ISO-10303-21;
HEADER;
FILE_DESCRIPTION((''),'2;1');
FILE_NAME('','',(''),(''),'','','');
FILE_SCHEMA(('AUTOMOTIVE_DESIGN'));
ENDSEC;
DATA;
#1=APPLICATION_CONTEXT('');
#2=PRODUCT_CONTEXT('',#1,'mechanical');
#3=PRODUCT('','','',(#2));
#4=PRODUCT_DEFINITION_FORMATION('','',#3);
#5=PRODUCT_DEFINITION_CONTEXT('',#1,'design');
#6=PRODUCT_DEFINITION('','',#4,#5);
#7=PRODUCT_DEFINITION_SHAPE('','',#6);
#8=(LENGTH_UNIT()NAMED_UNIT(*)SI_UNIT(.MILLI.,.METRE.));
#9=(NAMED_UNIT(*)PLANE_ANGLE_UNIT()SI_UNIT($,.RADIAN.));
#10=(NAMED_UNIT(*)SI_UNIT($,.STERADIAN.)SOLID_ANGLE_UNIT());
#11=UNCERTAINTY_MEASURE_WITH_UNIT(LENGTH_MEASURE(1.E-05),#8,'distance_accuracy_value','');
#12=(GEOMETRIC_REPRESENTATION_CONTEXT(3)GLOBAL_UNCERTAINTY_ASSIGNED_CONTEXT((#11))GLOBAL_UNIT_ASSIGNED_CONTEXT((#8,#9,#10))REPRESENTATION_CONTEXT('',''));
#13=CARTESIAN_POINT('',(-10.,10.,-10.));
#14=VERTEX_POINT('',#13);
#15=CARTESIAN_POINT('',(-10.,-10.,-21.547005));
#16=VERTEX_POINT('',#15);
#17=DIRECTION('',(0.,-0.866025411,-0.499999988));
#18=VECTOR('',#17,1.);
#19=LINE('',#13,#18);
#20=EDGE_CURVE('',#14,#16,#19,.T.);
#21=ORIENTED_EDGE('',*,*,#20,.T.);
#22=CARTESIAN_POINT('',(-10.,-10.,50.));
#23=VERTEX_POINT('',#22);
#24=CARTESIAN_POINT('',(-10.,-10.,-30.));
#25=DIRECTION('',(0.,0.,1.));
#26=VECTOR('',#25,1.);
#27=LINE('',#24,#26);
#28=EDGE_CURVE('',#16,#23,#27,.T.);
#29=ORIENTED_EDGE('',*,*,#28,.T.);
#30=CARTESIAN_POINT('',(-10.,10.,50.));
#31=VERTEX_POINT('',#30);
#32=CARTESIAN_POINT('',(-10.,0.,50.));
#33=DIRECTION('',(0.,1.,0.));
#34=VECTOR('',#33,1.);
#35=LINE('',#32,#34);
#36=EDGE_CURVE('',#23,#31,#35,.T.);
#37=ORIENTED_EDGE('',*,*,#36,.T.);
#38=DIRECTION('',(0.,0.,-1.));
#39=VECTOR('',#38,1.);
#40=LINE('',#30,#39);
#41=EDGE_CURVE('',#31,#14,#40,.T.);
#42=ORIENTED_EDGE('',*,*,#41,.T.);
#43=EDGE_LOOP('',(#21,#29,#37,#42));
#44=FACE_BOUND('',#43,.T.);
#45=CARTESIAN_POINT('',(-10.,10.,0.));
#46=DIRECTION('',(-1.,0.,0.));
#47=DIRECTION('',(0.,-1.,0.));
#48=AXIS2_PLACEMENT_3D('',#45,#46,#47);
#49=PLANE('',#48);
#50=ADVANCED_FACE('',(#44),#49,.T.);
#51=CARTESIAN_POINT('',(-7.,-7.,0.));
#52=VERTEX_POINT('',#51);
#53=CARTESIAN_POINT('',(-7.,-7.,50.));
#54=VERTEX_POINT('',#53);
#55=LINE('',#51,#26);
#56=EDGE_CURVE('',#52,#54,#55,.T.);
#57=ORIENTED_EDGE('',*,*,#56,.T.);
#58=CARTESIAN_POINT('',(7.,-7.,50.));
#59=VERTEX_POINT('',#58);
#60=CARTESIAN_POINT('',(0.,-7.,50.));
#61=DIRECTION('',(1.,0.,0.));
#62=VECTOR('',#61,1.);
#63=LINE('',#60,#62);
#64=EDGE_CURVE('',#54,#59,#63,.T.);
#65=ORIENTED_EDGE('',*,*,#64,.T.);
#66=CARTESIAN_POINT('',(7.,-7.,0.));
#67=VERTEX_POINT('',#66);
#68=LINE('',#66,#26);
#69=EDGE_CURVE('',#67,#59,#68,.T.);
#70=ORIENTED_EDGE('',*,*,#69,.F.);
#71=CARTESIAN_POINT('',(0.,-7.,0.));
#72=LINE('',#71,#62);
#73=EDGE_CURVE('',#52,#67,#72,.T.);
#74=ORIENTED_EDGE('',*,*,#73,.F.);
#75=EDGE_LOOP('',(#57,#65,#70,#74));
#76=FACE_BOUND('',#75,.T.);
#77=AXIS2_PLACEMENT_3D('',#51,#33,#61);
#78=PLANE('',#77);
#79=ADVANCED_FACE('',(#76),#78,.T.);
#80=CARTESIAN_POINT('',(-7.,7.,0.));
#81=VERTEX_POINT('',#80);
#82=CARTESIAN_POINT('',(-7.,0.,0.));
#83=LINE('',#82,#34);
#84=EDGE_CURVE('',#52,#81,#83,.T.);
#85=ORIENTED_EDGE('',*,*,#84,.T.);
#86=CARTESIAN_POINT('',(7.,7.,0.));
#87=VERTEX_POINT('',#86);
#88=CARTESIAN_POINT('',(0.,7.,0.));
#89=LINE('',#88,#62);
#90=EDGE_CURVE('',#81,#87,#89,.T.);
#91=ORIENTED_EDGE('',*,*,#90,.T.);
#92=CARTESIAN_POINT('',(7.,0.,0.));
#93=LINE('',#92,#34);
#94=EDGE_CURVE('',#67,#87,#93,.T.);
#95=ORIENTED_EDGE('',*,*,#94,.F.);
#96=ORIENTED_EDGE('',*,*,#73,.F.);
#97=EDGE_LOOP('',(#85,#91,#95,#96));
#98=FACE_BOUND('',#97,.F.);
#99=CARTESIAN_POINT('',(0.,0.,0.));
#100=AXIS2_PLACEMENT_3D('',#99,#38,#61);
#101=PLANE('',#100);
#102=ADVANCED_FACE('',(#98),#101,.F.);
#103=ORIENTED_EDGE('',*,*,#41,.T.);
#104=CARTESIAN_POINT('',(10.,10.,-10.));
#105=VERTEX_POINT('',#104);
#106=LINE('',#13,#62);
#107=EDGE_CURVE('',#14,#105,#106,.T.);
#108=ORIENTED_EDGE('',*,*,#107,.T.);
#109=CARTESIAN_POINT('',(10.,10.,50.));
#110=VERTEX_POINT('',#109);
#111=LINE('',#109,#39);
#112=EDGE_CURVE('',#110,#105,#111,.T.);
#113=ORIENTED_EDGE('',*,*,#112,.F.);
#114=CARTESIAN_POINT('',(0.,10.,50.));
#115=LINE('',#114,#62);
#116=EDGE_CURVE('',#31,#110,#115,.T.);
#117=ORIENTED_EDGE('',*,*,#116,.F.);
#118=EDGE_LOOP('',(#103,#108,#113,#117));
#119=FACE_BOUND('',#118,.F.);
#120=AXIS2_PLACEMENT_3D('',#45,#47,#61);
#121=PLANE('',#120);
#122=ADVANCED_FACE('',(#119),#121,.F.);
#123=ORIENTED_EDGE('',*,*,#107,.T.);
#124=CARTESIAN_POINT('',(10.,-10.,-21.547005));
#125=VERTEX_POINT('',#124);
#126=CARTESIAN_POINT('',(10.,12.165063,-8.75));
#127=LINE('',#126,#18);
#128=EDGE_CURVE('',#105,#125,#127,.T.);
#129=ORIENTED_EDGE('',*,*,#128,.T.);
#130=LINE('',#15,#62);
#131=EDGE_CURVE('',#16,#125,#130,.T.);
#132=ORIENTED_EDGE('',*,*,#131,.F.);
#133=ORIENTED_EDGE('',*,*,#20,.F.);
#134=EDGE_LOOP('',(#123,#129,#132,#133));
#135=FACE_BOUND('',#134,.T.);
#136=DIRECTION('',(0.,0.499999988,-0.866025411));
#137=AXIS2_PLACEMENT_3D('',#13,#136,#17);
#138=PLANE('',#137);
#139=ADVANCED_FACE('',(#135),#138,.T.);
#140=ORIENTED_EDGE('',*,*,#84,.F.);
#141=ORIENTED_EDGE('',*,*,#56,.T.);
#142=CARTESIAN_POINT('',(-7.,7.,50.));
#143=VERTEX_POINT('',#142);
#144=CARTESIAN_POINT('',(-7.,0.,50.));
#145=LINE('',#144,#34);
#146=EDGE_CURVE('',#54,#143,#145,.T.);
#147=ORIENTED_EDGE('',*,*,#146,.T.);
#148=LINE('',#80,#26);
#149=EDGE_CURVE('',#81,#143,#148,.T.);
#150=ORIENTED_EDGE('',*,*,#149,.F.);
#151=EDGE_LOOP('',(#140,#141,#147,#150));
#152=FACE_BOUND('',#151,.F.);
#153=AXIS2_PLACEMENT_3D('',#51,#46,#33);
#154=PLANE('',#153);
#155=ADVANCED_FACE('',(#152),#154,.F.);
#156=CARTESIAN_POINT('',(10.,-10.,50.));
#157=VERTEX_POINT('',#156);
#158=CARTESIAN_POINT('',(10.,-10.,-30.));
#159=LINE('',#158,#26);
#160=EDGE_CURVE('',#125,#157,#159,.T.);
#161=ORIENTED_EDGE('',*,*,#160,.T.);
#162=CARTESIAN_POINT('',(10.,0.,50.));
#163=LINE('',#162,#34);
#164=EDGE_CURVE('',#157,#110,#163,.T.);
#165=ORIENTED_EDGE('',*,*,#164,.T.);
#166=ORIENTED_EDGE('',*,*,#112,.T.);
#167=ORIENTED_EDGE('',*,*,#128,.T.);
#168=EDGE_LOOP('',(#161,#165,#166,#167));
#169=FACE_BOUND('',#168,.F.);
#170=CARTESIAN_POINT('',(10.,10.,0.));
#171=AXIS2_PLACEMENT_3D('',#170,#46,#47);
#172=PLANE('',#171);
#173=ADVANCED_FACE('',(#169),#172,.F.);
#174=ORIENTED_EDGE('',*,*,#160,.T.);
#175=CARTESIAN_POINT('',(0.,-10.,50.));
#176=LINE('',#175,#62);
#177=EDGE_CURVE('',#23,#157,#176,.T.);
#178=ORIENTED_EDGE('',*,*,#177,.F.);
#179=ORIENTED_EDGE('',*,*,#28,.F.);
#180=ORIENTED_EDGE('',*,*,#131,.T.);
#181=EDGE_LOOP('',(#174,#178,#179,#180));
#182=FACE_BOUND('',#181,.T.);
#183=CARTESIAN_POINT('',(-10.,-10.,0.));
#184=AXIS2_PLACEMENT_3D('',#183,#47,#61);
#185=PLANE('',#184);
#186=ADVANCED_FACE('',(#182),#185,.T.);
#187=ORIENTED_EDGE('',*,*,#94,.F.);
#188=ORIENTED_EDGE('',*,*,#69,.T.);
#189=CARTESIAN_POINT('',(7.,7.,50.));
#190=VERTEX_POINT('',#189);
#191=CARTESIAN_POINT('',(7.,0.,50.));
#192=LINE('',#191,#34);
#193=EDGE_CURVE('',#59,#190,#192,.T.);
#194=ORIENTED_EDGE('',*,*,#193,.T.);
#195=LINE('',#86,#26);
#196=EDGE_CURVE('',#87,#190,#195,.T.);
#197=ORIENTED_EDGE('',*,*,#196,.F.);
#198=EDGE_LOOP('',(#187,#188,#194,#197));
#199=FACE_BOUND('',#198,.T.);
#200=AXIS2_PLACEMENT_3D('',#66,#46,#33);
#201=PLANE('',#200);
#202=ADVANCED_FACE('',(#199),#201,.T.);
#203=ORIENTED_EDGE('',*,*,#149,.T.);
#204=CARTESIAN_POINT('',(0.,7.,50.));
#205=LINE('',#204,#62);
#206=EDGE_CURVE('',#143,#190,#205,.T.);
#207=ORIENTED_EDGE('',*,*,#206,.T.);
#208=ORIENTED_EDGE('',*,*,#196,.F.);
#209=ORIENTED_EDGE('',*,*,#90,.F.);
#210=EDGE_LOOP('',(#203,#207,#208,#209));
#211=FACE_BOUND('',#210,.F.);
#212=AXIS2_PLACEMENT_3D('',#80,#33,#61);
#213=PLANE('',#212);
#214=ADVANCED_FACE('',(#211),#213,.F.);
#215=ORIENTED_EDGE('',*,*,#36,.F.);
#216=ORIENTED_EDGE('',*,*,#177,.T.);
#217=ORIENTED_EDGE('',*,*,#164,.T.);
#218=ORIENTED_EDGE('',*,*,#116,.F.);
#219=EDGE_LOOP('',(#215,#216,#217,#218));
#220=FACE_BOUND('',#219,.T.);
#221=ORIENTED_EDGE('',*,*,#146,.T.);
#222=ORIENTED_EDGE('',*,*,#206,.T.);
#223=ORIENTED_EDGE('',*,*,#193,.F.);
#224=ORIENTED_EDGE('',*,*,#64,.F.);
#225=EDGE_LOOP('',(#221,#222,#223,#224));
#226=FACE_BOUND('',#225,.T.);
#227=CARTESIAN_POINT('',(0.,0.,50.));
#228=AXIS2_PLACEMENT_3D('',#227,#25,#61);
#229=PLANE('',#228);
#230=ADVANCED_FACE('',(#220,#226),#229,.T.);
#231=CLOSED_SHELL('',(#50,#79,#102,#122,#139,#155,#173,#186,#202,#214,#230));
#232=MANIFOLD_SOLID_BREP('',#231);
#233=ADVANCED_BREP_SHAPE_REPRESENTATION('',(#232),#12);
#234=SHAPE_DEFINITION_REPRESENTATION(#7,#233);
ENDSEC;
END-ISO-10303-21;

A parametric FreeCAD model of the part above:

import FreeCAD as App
import Part
import Sketcher

V = App.Vector
Q = App.Units.Quantity

doc = App.newDocument("Part")
body = doc.addObject("PartDesign::Body", "Body")

# Sketch on XY plane
sketch1 = body.newObject("Sketcher::SketchObject", "Sketch")
sketch1.AttachmentSupport = (doc.getObject("XY_Plane"), [""])
sketch1.MapMode = "FlatFace"
sketch1.addGeometry([
    Part.LineSegment(V(-10, 10, 0), V(-10, -10, 0)),  # 0
    Part.LineSegment(V(-10, -10, 0), V(10, -10, 0)),  # 1
    Part.LineSegment(V(10, -10, 0), V(10, 10, 0)),  # 2
    Part.LineSegment(V(10, 10, 0), V(-10, 10, 0)),  # 3
    Part.LineSegment(V(7, -7, 0), V(-7, -7, 0)),  # 4
    Part.LineSegment(V(-7, -7, 0), V(-7, 7, 0)),  # 5
    Part.LineSegment(V(-7, 7, 0), V(7, 7, 0)),  # 6
    Part.LineSegment(V(7, 7, 0), V(7, -7, 0)),  # 7
], False)
sketch1.addConstraint([
    Sketcher.Constraint("Coincident", 0, 2, 1, 1),
    Sketcher.Constraint("Coincident", 1, 2, 2, 1),
    Sketcher.Constraint("Coincident", 2, 2, 3, 1),
    Sketcher.Constraint("Coincident", 3, 2, 0, 1),
    Sketcher.Constraint("Coincident", 4, 2, 5, 1),
    Sketcher.Constraint("Coincident", 5, 2, 6, 1),
    Sketcher.Constraint("Coincident", 6, 2, 7, 1),
    Sketcher.Constraint("Coincident", 7, 2, 4, 1),
    Sketcher.Constraint("Vertical", 0),
    Sketcher.Constraint("Horizontal", 1),
    Sketcher.Constraint("Vertical", 2),
    Sketcher.Constraint("Horizontal", 3),
    Sketcher.Constraint("Horizontal", 4),
    Sketcher.Constraint("Vertical", 5),
    Sketcher.Constraint("Horizontal", 6),
    Sketcher.Constraint("Vertical", 7),
    Sketcher.Constraint("Symmetric", 0, 2, 2, 2, -1, 1),
    Sketcher.Constraint("Symmetric", 4, 2, 6, 2, -1, 1),
    Sketcher.Constraint("Equal", 3, 0),
    Sketcher.Constraint("Equal", 6, 5),
    Sketcher.Constraint("DistanceX", 1, 1, 1, 2, 20.0),
    Sketcher.Constraint("DistanceX", 4, 2, 4, 1, 14.0),
])
pad1 = body.newObject("PartDesign::Pad", "Pad")
pad1.Profile = sketch1
pad1.Length = 50

# Sketch on XY plane
sketch2 = body.newObject("Sketcher::SketchObject", "Sketch001")
sketch2.AttachmentSupport = (doc.getObject("XY_Plane"), [""])
sketch2.MapMode = "FlatFace"
sketch2.addGeometry([
    Part.LineSegment(V(-10, -10, 0), V(-10, 10, 0)),
    Part.LineSegment(V(-10, 10, 0), V(10, 10, 0)),
    Part.LineSegment(V(10, 10, 0), V(10, -10, 0)),
    Part.LineSegment(V(10, -10, 0), V(-10, -10, 0)),
], False)
sketch2.addConstraint([
    Sketcher.Constraint("Coincident", 0, 2, 1, 1),
    Sketcher.Constraint("Coincident", 1, 2, 2, 1),
    Sketcher.Constraint("Coincident", 2, 2, 3, 1),
    Sketcher.Constraint("Coincident", 3, 2, 0, 1),
    Sketcher.Constraint("Vertical", 0),
    Sketcher.Constraint("Horizontal", 1),
    Sketcher.Constraint("Vertical", 2),
    Sketcher.Constraint("Horizontal", 3),
    Sketcher.Constraint("Symmetric", 0, 2, 2, 2, -1, 1),
    Sketcher.Constraint("Equal", 3, 0),
    Sketcher.Constraint("DistanceX", 1, 1, 1, 2, 20.0),
])
pad2 = body.newObject("PartDesign::Pad", "Pad001")
pad2.Profile = sketch2
pad2.Length = 30
pad2.Reversed = True

# Sketch on YZ plane
sketch3 = body.newObject("Sketcher::SketchObject", "Sketch002")
sketch3.AttachmentSupport = (doc.getObject("YZ_Plane"), [""])
sketch3.MapMode = "FlatFace"
sketch3.AttachmentOffset = App.Placement(V(0, 0, -10), App.Rotation())
sketch3.addGeometry([
    Part.LineSegment(V(-10, -22, 0), V(10, -10, 0)),
    Part.LineSegment(V(10, -10, 0), V(10, -30, 0)),
    Part.LineSegment(V(10, -30, 0), V(-10, -30, 0)),
    Part.LineSegment(V(-10, -30, 0), V(-10, -22, 0)),
], False)
sketch3.addConstraint([
    Sketcher.Constraint("Coincident", 0, 2, 1, 1),
    Sketcher.Constraint("Coincident", 1, 2, 2, 1),
    Sketcher.Constraint("Coincident", 2, 2, 3, 1),
    Sketcher.Constraint("Coincident", 3, 2, 0, 1),
    Sketcher.Constraint("Vertical", 1),
    Sketcher.Constraint("Horizontal", 2),
    Sketcher.Constraint("Vertical", 3),
    Sketcher.Constraint("Equal", 2, 1),
    Sketcher.Constraint("DistanceX", 2, 2, 2, 1, 20.0),
    Sketcher.Constraint("Angle", 0, Q("29.999999 deg")),
    Sketcher.Constraint("DistanceX", -1, 1, 0, 2, 10.0),
    Sketcher.Constraint("DistanceY", 0, 2, -1, 1, 10.0),
])
pocket1 = body.newObject("PartDesign::Pocket", "Pocket")
pocket1.Profile = sketch3
pocket1.Type = "ThroughAll"
pocket1.Reversed = True

doc.recompute()
